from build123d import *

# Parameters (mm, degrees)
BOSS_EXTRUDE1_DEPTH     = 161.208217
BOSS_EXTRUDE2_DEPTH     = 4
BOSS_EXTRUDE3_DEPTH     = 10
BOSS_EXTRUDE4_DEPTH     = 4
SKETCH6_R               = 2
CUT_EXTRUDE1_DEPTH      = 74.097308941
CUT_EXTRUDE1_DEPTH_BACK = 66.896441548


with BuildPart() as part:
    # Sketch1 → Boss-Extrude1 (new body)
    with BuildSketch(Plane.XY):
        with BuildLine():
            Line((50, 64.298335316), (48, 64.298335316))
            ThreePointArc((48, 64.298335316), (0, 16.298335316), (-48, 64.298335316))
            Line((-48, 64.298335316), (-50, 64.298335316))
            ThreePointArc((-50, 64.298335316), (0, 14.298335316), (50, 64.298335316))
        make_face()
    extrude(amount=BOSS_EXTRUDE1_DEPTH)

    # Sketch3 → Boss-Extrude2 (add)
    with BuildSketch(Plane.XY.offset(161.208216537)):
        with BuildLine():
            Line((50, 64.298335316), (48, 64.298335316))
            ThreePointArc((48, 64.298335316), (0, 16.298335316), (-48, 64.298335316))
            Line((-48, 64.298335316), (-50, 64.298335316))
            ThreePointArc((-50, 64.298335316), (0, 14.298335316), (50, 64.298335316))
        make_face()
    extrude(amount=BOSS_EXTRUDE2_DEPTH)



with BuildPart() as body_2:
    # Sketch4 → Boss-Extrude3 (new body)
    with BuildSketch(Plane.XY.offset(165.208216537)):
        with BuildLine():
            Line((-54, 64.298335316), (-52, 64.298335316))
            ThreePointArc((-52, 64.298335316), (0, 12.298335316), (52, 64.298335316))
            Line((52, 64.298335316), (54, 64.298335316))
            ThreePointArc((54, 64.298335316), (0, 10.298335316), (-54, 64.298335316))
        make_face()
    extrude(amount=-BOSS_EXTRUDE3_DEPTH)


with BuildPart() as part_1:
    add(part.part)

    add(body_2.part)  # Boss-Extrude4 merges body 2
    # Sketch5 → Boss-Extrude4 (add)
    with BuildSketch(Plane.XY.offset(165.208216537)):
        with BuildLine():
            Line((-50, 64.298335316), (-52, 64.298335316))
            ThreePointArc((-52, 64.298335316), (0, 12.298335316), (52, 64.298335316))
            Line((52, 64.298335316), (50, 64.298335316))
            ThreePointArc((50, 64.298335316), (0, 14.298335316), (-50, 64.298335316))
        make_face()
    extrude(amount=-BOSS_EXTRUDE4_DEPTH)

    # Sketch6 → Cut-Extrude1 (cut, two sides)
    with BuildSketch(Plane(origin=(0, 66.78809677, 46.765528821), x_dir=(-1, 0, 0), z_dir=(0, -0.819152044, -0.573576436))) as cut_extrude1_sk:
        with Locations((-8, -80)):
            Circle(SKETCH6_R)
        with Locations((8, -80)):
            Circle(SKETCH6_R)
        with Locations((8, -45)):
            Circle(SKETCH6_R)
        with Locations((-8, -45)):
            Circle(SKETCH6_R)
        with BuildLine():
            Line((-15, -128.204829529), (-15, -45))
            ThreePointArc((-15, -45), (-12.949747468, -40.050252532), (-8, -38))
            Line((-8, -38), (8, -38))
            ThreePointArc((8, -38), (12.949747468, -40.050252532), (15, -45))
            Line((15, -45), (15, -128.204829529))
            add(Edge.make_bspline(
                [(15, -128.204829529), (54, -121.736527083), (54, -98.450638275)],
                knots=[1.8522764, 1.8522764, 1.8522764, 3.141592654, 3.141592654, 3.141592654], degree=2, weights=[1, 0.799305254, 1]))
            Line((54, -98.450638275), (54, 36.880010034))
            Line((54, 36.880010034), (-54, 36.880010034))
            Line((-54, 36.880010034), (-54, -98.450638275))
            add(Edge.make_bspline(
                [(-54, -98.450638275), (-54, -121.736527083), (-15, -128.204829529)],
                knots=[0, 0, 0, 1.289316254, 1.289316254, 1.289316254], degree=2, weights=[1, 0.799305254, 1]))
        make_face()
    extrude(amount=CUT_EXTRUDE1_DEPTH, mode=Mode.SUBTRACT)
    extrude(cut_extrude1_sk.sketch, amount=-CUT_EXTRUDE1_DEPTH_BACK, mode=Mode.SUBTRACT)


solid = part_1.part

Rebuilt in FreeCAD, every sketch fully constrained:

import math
import FreeCAD as App
import Part
import Sketcher
from FreeCAD import Vector
Q = App.Units.Quantity

doc = App.newDocument("Part")
body = doc.addObject("PartDesign::Body", "Body")

# Sketch on XY plane
sketch1 = body.newObject("Sketcher::SketchObject", "Sketch")
sketch1.AttachmentSupport = (doc.getObject("XY_Plane"), [""])
sketch1.MapMode = "FlatFace"
sketch1.addGeometry(Part.LineSegment(Vector(50, 64.3, 0), Vector(48, 64.3, 0)), False)
sketch1.addGeometry(Part.ArcOfCircle(Part.Circle(Vector(0, 64.3, 0), Vector(0, 0, 1), 48), math.radians(180), math.radians(360)), False)
sketch1.addGeometry(Part.LineSegment(Vector(-48, 64.3, 0), Vector(-50, 64.3, 0)), False)
sketch1.addGeometry(Part.ArcOfCircle(Part.Circle(Vector(0, 64.3, 0), Vector(0, 0, 1), 50), math.radians(180), math.radians(360)), False)
sketch1.addConstraint(Sketcher.Constraint("Coincident", 0, 2, 1, 2))
sketch1.addConstraint(Sketcher.Constraint("Coincident", 1, 1, 2, 1))
sketch1.addConstraint(Sketcher.Constraint("Coincident", 2, 2, 3, 1))
sketch1.addConstraint(Sketcher.Constraint("Coincident", 3, 2, 0, 1))
sketch1.addConstraint(Sketcher.Constraint("Horizontal", 0))
sketch1.addConstraint(Sketcher.Constraint("Horizontal", 2))
sketch1.addConstraint(Sketcher.Constraint("Coincident", 3, 3, 1, 3))
sketch1.addConstraint(Sketcher.Constraint("Symmetric", 0, 2, 1, 1, -2))
sketch1.addConstraint(Sketcher.Constraint("Horizontal", 3, 3, 0, 2))
sketch1.addConstraint(Sketcher.Constraint("Radius", 1, Q("48 mm")))
sketch1.addConstraint(Sketcher.Constraint("Radius", 3, Q("50 mm")))
sketch1.addConstraint(Sketcher.Constraint("DistanceY", -1, 1, 1, 3, Q("64.298335 mm")))
pad1 = body.newObject("PartDesign::Pad", "Pad")
pad1.Profile = sketch1
pad1.Length = 161.208217

# Sketch on XY plane
sketch2 = body.newObject("Sketcher::SketchObject", "Sketch001")
sketch2.AttachmentSupport = (doc.getObject("XY_Plane"), [""])
sketch2.MapMode = "FlatFace"
sketch2.AttachmentOffset = App.Placement(Vector(0, 0, 161.208217), App.Rotation())
sketch2.addGeometry(Part.LineSegment(Vector(50, 64.3, 0), Vector(48, 64.3, 0)), False)
sketch2.addGeometry(Part.ArcOfCircle(Part.Circle(Vector(0, 64.3, 0), Vector(0, 0, 1), 48), math.radians(180), math.radians(360)), False)
sketch2.addGeometry(Part.LineSegment(Vector(-48, 64.3, 0), Vector(-50, 64.3, 0)), False)
sketch2.addGeometry(Part.ArcOfCircle(Part.Circle(Vector(0, 64.3, 0), Vector(0, 0, 1), 50), math.radians(180), math.radians(360)), False)
sketch2.addConstraint(Sketcher.Constraint("Coincident", 0, 2, 1, 2))
sketch2.addConstraint(Sketcher.Constraint("Coincident", 1, 1, 2, 1))
sketch2.addConstraint(Sketcher.Constraint("Coincident", 2, 2, 3, 1))
sketch2.addConstraint(Sketcher.Constraint("Coincident", 3, 2, 0, 1))
sketch2.addConstraint(Sketcher.Constraint("Horizontal", 0))
sketch2.addConstraint(Sketcher.Constraint("Horizontal", 2))
sketch2.addConstraint(Sketcher.Constraint("Coincident", 3, 3, 1, 3))
sketch2.addConstraint(Sketcher.Constraint("Symmetric", 0, 2, 1, 1, -2))
sketch2.addConstraint(Sketcher.Constraint("Horizontal", 3, 3, 0, 2))
sketch2.addConstraint(Sketcher.Constraint("Radius", 1, Q("48 mm")))
sketch2.addConstraint(Sketcher.Constraint("Radius", 3, Q("50 mm")))
sketch2.addConstraint(Sketcher.Constraint("DistanceY", -1, 1, 1, 3, Q("64.298335 mm")))
pad2 = body.newObject("PartDesign::Pad", "Pad001")
pad2.Profile = sketch2
pad2.Length = 4
body2 = doc.addObject("PartDesign::Body", "Body001")

# Sketch on XY plane
sketch3 = body2.newObject("Sketcher::SketchObject", "Sketch002")
sketch3.AttachmentSupport = (doc.getObject("XY_Plane001"), [""])
sketch3.MapMode = "FlatFace"
sketch3.AttachmentOffset = App.Placement(Vector(0, 0, 165.208217), App.Rotation())
sketch3.addGeometry(Part.LineSegment(Vector(-52, 64.3, 0), Vector(-54, 64.3, 0)), False)
sketch3.addGeometry(Part.ArcOfCircle(Part.Circle(Vector(0, 64.3, 0), Vector(0, 0, 1), 54), math.radians(180), math.radians(360)), False)
sketch3.addGeometry(Part.LineSegment(Vector(54, 64.3, 0), Vector(52, 64.3, 0)), False)
sketch3.addGeometry(Part.ArcOfCircle(Part.Circle(Vector(0, 64.3, 0), Vector(0, 0, 1), 52), math.radians(180), math.radians(360)), False)
sketch3.addConstraint(Sketcher.Constraint("Coincident", 0, 2, 1, 1))
sketch3.addConstraint(Sketcher.Constraint("Coincident", 1, 2, 2, 1))
sketch3.addConstraint(Sketcher.Constraint("Coincident", 2, 2, 3, 2))
sketch3.addConstraint(Sketcher.Constraint("Coincident", 3, 1, 0, 1))
sketch3.addConstraint(Sketcher.Constraint("Horizontal", 0))
sketch3.addConstraint(Sketcher.Constraint("Horizontal", 2))
sketch3.addConstraint(Sketcher.Constraint("Coincident", 3, 3, 1, 3))
sketch3.addConstraint(Sketcher.Constraint("Symmetric", 0, 2, 1, 2, -2))
sketch3.addConstraint(Sketcher.Constraint("Horizontal", 3, 3, 0, 2))
sketch3.addConstraint(Sketcher.Constraint("Radius", 1, Q("54 mm")))
sketch3.addConstraint(Sketcher.Constraint("Radius", 3, Q("52 mm")))
sketch3.addConstraint(Sketcher.Constraint("DistanceY", -1, 1, 1, 3, Q("64.298335 mm")))
pad3 = body2.newObject("PartDesign::Pad", "Pad002")
pad3.Profile = sketch3
pad3.Length = 10
pad3.Reversed = True
body.AllowCompound = True
doc.recompute()

boolean = body.newObject("PartDesign::Boolean", "Boolean")
boolean.Type = "Fuse"
boolean.addObjects([body2])

# Sketch on XY plane
sketch4 = body.newObject("Sketcher::SketchObject", "Sketch003")
sketch4.AttachmentSupport = (doc.getObject("XY_Plane"), [""])
sketch4.MapMode = "FlatFace"
sketch4.AttachmentOffset = App.Placement(Vector(0, 0, 165.208217), App.Rotation())
sketch4.addGeometry(Part.LineSegment(Vector(-50, 64.3, 0), Vector(-52, 64.3, 0)), False)
sketch4.addGeometry(Part.ArcOfCircle(Part.Circle(Vector(0, 64.3, 0), Vector(0, 0, 1), 52), math.radians(180), math.radians(360)), False)
sketch4.addGeometry(Part.LineSegment(Vector(52, 64.3, 0), Vector(50, 64.3, 0)), False)
sketch4.addGeometry(Part.ArcOfCircle(Part.Circle(Vector(0, 64.3, 0), Vector(0, 0, 1), 50), math.radians(180), math.radians(360)), False)
sketch4.addConstraint(Sketcher.Constraint("Coincident", 0, 2, 1, 1))
sketch4.addConstraint(Sketcher.Constraint("Coincident", 1, 2, 2, 1))
sketch4.addConstraint(Sketcher.Constraint("Coincident", 2, 2, 3, 2))
sketch4.addConstraint(Sketcher.Constraint("Coincident", 3, 1, 0, 1))
sketch4.addConstraint(Sketcher.Constraint("Horizontal", 0))
sketch4.addConstraint(Sketcher.Constraint("Horizontal", 2))
sketch4.addConstraint(Sketcher.Constraint("Coincident", 3, 3, 1, 3))
sketch4.addConstraint(Sketcher.Constraint("Symmetric", 0, 2, 1, 2, -2))
sketch4.addConstraint(Sketcher.Constraint("Horizontal", 3, 3, 0, 2))
sketch4.addConstraint(Sketcher.Constraint("Radius", 1, Q("52 mm")))
sketch4.addConstraint(Sketcher.Constraint("Radius", 3, Q("50 mm")))
sketch4.addConstraint(Sketcher.Constraint("DistanceY", -1, 1, 1, 3, Q("64.298335 mm")))
pad4 = body.newObject("PartDesign::Pad", "Pad003")
pad4.Profile = sketch4
pad4.Length = 4
pad4.Reversed = True

# Sketch on an angled plane
sketch5 = body.newObject("Sketcher::SketchObject", "Sketch004")
sketch5.Placement = App.Placement(Vector(0, 66.788097, 46.765529), App.Rotation(Vector(-1, 0, 0), Vector(0, 0.573576436, -0.819152044), Vector(0, -0.819152044, -0.573576436), "ZXY"))
sketch5.addGeometry(Part.Circle(Vector(-8, -80, 0), Vector(0, 0, 1), 2), False)
sketch5.addGeometry(Part.Circle(Vector(8, -80, 0), Vector(0, 0, 1), 2), False)
sketch5.addGeometry(Part.Circle(Vector(8, -45, 0), Vector(0, 0, 1), 2), False)
sketch5.addGeometry(Part.Circle(Vector(-8, -45, 0), Vector(0, 0, 1), 2), False)
sketch5.addGeometry(Part.LineSegment(Vector(-15, -128.204829, 0), Vector(-15, -45, 0)), False)
sketch5.addGeometry(Part.ArcOfCircle(Part.Circle(Vector(-8, -45, 0), Vector(0, 0, 1), 7), math.radians(90), math.radians(180)), False)
sketch5.addGeometry(Part.LineSegment(Vector(-8, -38, 0), Vector(8, -38, 0)), False)
sketch5.addGeometry(Part.ArcOfCircle(Part.Circle(Vector(8, -45, 0), Vector(0, 0, 1), 7), math.radians(0), math.radians(90)), False)
sketch5.addGeometry(Part.LineSegment(Vector(15, -45, 0), Vector(15, -128.204829, 0)), False)
sketch5.addGeometry(Part.BSplineCurve([Vector(15, -128.204829, 0), Vector(54, -121.736527, 0), Vector(54, -98.450638, 0)], [3, 3], [1.8522764, 3.141592654], False, 2, [1, 0.799305254, 1], False), False)
sketch5.addGeometry(Part.LineSegment(Vector(54, -98.450638, 0), Vector(54, 36.88001, 0)), False)
sketch5.addGeometry(Part.LineSegment(Vector(54, 36.88001, 0), Vector(-54, 36.88001, 0)), False)
sketch5.addGeometry(Part.LineSegment(Vector(-54, 36.88001, 0), Vector(-54, -98.450638, 0)), False)
sketch5.addGeometry(Part.BSplineCurve([Vector(-54, -98.450638, 0), Vector(-54, -121.736527, 0), Vector(-15, -128.204829, 0)], [3, 3], [0, 1.289316254], False, 2, [1, 0.799305254, 1], False), False)
sketch5.addConstraint(Sketcher.Constraint("Block", 9))
sketch5.addConstraint(Sketcher.Constraint("Block", 13))
sketch5.addConstraint(Sketcher.Constraint("Tangent", 4, 2, 5, 2))
sketch5.addConstraint(Sketcher.Constraint("Tangent", 5, 1, 6, 1))
sketch5.addConstraint(Sketcher.Constraint("Tangent", 6, 2, 7, 2))
sketch5.addConstraint(Sketcher.Constraint("Tangent", 7, 1, 8, 1))
sketch5.addConstraint(Sketcher.Constraint("Coincident", 8, 2, 9, 1))
sketch5.addConstraint(Sketcher.Constraint("Coincident", 9, 2, 10, 1))
sketch5.addConstraint(Sketcher.Constraint("Coincident", 10, 2, 11, 1))
sketch5.addConstraint(Sketcher.Constraint("Coincident", 11, 2, 12, 1))
sketch5.addConstraint(Sketcher.Constraint("Coincident", 12, 2, 13, 1))
sketch5.addConstraint(Sketcher.Constraint("Coincident", 13, 2, 4, 1))
sketch5.addConstraint(Sketcher.Constraint("Vertical", 4))
sketch5.addConstraint(Sketcher.Constraint("Horizontal", 6))
sketch5.addConstraint(Sketcher.Constraint("Vertical", 8))
sketch5.addConstraint(Sketcher.Constraint("Vertical", 10))
sketch5.addConstraint(Sketcher.Constraint("Horizontal", 11))
sketch5.addConstraint(Sketcher.Constraint("Vertical", 12))
sketch5.addConstraint(Sketcher.Constraint("Coincident", 5, 3, 3, 3))
sketch5.addConstraint(Sketcher.Constraint("Coincident", 7, 3, 2, 3))
sketch5.addConstraint(Sketcher.Constraint("Equal", 0, 1))
sketch5.addConstraint(Sketcher.Constraint("Equal", 1, 2))
sketch5.addConstraint(Sketcher.Constraint("Equal", 2, 3))
sketch5.addConstraint(Sketcher.Constraint("Equal", 5, 7))
sketch5.addConstraint(Sketcher.Constraint("Symmetric", 0, 3, 1, 3, -2))
sketch5.addConstraint(Sketcher.Constraint("Vertical", 1, 3, 2, 3))
sketch5.addConstraint(Sketcher.Constraint("Diameter", 0, Q("4 mm")))
sketch5.addConstraint(Sketcher.Constraint("Radius", 5, Q("7 mm")))
sketch5.addConstraint(Sketcher.Constraint("DistanceY", 0, 3, -1, 1, Q("80 mm")))
sketch5.addConstraint(Sketcher.Constraint("DistanceY", 2, 3, -1, 1, Q("45 mm")))
sketch5.addConstraint(Sketcher.Constraint("DistanceY", 10, 1, 10, 2, Q("135.330648 mm")))
pocket1 = body.newObject("PartDesign::Pocket", "Pocket")
pocket1.Profile = sketch5
pocket1.Type = "ThroughAll"
pocket1.Midplane = True

doc.recompute()
